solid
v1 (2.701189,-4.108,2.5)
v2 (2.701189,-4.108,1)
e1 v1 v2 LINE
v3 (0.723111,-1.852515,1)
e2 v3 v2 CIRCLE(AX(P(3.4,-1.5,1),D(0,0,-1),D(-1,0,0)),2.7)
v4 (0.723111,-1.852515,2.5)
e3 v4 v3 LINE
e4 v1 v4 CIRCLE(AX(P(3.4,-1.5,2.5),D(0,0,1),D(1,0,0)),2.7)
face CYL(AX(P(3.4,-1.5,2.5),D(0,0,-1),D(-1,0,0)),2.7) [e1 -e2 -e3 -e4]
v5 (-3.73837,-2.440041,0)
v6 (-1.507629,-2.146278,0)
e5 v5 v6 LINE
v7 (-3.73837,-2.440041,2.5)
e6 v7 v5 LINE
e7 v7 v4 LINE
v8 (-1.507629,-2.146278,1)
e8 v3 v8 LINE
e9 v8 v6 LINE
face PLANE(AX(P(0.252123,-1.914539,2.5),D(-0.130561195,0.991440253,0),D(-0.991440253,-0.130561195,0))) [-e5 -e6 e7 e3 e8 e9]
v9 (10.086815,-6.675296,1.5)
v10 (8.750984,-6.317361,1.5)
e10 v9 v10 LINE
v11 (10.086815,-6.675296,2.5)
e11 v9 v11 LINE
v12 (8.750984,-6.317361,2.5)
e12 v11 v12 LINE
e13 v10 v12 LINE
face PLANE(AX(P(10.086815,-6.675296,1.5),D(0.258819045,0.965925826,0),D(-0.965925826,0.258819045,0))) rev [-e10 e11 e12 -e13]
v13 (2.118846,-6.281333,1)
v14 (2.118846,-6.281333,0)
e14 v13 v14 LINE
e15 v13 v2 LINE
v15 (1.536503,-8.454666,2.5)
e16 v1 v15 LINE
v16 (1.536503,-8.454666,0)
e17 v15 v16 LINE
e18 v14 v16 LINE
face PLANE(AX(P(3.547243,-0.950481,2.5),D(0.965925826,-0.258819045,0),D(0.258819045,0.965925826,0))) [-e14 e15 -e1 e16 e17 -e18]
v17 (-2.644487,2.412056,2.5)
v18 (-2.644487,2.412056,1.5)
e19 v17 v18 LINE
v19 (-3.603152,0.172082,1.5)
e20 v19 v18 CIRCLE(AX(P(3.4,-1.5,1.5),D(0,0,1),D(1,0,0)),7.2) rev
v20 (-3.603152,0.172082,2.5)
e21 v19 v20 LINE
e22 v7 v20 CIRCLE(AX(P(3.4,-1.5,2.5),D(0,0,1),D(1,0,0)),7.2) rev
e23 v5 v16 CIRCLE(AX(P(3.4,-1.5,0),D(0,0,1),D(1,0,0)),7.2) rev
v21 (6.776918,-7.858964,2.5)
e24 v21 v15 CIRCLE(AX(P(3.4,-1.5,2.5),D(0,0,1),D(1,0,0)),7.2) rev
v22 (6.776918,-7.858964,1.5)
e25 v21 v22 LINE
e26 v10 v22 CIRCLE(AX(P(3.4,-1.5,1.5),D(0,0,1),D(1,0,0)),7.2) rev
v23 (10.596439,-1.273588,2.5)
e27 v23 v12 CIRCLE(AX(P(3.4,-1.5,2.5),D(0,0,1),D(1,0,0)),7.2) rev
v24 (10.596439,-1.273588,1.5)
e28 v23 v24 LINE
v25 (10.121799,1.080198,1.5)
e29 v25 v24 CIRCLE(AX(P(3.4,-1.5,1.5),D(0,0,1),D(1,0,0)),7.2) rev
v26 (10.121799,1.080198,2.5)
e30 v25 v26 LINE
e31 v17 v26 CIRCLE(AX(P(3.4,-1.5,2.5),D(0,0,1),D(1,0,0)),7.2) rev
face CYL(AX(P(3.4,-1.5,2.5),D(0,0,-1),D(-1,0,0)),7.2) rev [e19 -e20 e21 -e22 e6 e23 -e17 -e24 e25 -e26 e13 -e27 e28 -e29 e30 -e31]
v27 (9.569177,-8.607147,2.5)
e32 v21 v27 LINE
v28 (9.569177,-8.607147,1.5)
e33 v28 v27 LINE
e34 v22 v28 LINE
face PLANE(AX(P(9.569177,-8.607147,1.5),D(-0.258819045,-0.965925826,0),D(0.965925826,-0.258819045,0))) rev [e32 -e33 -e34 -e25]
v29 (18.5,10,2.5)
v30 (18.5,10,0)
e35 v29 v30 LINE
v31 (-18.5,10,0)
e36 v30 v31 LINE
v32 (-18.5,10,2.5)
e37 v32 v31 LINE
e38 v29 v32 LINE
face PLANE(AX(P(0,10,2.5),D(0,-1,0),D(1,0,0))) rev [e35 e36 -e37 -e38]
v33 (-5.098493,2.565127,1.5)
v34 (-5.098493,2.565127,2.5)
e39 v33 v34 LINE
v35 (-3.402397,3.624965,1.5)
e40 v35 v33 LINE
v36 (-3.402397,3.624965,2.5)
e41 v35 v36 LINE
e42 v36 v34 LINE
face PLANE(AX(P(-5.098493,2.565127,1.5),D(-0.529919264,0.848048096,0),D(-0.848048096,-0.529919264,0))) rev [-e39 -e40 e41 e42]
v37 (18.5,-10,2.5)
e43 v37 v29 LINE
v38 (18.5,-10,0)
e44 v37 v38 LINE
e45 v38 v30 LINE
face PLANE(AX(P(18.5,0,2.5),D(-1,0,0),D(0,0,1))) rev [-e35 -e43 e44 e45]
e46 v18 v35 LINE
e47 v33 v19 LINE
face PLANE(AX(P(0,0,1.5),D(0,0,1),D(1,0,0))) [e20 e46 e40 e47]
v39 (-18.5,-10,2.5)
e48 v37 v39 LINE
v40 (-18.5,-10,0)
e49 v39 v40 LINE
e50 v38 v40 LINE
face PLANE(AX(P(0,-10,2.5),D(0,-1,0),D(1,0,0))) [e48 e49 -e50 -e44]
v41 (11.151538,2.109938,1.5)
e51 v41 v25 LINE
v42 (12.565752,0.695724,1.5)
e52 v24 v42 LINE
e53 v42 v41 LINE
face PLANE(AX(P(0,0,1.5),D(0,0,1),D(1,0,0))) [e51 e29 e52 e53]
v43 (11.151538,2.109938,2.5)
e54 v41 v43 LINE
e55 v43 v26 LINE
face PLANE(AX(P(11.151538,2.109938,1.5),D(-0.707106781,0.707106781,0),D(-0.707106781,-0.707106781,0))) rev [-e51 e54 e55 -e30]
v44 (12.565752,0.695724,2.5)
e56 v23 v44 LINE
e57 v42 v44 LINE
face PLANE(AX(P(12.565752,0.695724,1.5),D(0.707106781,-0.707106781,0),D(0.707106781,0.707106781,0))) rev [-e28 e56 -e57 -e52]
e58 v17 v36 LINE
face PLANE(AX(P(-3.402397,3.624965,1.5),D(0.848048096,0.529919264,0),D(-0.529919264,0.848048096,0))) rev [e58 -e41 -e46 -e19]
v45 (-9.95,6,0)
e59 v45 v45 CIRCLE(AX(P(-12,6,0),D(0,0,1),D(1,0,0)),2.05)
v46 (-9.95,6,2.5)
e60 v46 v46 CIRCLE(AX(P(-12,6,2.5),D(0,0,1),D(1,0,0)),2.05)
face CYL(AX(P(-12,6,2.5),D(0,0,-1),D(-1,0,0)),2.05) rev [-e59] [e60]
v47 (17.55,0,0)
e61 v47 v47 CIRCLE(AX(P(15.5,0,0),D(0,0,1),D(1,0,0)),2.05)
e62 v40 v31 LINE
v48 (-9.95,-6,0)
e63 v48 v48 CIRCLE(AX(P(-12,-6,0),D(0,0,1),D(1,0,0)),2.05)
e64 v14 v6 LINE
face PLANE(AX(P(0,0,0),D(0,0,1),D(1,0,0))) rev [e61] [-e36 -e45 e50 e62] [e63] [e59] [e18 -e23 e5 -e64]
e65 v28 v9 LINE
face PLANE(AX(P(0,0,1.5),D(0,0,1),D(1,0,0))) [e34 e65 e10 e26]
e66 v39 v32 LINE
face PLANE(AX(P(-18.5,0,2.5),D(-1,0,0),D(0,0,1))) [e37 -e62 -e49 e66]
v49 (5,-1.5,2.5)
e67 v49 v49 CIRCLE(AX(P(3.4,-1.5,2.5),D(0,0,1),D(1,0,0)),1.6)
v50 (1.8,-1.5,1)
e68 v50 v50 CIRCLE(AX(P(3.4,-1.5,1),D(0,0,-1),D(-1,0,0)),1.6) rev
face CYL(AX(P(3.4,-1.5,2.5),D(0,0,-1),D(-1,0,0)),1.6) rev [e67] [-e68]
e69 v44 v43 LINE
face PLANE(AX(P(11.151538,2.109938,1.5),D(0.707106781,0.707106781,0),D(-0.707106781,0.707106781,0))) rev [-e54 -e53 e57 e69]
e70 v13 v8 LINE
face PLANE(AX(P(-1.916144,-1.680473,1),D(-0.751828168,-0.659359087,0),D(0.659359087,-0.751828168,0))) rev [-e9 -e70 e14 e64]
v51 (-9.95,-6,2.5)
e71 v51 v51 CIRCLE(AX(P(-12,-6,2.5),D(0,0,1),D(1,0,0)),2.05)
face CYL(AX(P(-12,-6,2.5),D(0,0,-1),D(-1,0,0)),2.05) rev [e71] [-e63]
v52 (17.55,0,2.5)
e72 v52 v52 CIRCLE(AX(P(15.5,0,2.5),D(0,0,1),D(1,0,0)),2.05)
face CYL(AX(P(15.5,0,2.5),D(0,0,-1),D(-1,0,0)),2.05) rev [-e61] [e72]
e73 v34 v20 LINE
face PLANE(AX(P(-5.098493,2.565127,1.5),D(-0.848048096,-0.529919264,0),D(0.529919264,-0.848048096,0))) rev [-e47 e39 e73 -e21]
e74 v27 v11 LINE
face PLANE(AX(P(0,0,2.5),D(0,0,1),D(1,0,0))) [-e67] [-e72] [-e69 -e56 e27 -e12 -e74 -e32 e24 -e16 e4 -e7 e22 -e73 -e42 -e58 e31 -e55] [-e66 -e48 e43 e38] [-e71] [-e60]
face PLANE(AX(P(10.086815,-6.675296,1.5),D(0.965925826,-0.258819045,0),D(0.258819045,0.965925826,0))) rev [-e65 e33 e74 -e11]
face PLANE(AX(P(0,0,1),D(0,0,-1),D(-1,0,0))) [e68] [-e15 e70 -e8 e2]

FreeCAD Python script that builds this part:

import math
import FreeCAD as App
import Part
import Sketcher
Q = App.Units.Quantity

doc = App.newDocument("Part")
body = doc.addObject("PartDesign::Body", "Body")

# Sketch on XY plane
sketch1 = body.newObject("Sketcher::SketchObject", "Sketch")
sketch1.AttachmentSupport = (doc.getObject("XY_Plane"), [""])
sketch1.MapMode = "FlatFace"
sketch1.addGeometry([
    Part.LineSegment(App.Vector(-18.5, 10, 0), App.Vector(-18.5, -10, 0)),  # 0
    Part.LineSegment(App.Vector(-18.5, -10, 0), App.Vector(18.5, -10, 0)),  # 1
    Part.LineSegment(App.Vector(18.5, -10, 0), App.Vector(18.5, 10, 0)),  # 2
    Part.LineSegment(App.Vector(18.5, 10, 0), App.Vector(-18.5, 10, 0)),  # 3
    Part.Circle(App.Vector(-12, -6, 0), App.Vector(0, 0, 1), 2.05),  # 4
    Part.Circle(App.Vector(3.4, -1.5, 0), App.Vector(0, 0, 1), 1.6),  # 5
    Part.LineSegment(App.Vector(0.723111, -1.852515, 0), App.Vector(-3.73837, -2.440041, 0)),  # 6
    Part.ArcOfCircle(Part.Circle(App.Vector(3.4, -1.5, 0), App.Vector(0, 0, 1), 7.2), math.radians(-105), math.radians(187.502023)),  # 7
    Part.LineSegment(App.Vector(1.536503, -8.454666, 0), App.Vector(2.701189, -4.108, 0)),  # 8
    Part.ArcOfCircle(Part.Circle(App.Vector(3.4, -1.5, 0), App.Vector(0, 0, 1), 2.7), math.radians(-105), math.radians(187.502023)),  # 9
    Part.Circle(App.Vector(-12, 6, 0), App.Vector(0, 0, 1), 2.05),  # 10
    Part.Circle(App.Vector(15.5, 0, 0), App.Vector(0, 0, 1), 2.05),  # 11
], False)
sketch1.addConstraint([
    Sketcher.Constraint("Coincident", 0, 2, 1, 1),
    Sketcher.Constraint("Coincident", 1, 2, 2, 1),
    Sketcher.Constraint("Coincident", 2, 2, 3, 1),
    Sketcher.Constraint("Coincident", 3, 2, 0, 1),
    Sketcher.Constraint("Coincident", 6, 2, 7, 2),
    Sketcher.Constraint("Coincident", 7, 1, 8, 1),
    Sketcher.Constraint("Coincident", 8, 2, 9, 1),
    Sketcher.Constraint("Coincident", 9, 2, 6, 1),
    Sketcher.Constraint("Vertical", 0),
    Sketcher.Constraint("Horizontal", 1),
    Sketcher.Constraint("Vertical", 2),
    Sketcher.Constraint("Horizontal", 3),
    Sketcher.Constraint("Coincident", 7, 3, 5, 3),
    Sketcher.Constraint("Coincident", 9, 3, 5, 3),
    Sketcher.Constraint("Equal", 4, 10),
    Sketcher.Constraint("Equal", 10, 11),
    Sketcher.Constraint("Symmetric", 0, 2, 2, 2, -1, 1),
    Sketcher.Constraint("Symmetric", 4, 3, 10, 3, -1),
    Sketcher.Constraint("PointOnObject", 11, 3, -1),
    Sketcher.Constraint("Diameter", 4, Q("4.1 mm")),
    Sketcher.Constraint("Diameter", 5, Q("3.2 mm")),
    Sketcher.Constraint("Radius", 7, Q("7.2 mm")),
    Sketcher.Constraint("Radius", 9, Q("2.7 mm")),
    Sketcher.Constraint("DistanceX", 1, 1, 1, 2, Q("37 mm")),
    Sketcher.Constraint("DistanceY", 0, 2, 0, 1, Q("20 mm")),
    Sketcher.Constraint("Angle", 8, Q("75 deg")),
    Sketcher.Constraint("DistanceX", 4, 3, -1, 1, Q("12 mm")),
    Sketcher.Constraint("DistanceY", 4, 3, -1, 1, Q("6 mm")),
    Sketcher.Constraint("DistanceX", 11, 3, 1, 2, Q("3 mm")),
    Sketcher.Constraint("DistanceX", -1, 1, 5, 3, Q("3.4 mm")),
    Sketcher.Constraint("DistanceY", 5, 3, -1, 1, Q("1.5 mm")),
    Sketcher.Constraint("DistanceY", 8, 2, -1, 1, Q("4.108 mm")),
    Sketcher.Constraint("DistanceX", 6, 2, -1, 1, Q("3.73837 mm")),
    Sketcher.Constraint("DistanceX", -1, 1, 9, 2, Q("0.723111 mm")),
])
pad1 = body.newObject("PartDesign::Pad", "Pad")
pad1.Profile = sketch1
pad1.Length = 2.5

# Sketch on XY plane
sketch2 = body.newObject("Sketcher::SketchObject", "Sketch001")
sketch2.AttachmentSupport = (doc.getObject("XY_Plane"), [""])
sketch2.MapMode = "FlatFace"
sketch2.addGeometry([
    Part.LineSegment(App.Vector(-1.507629, -2.146278, 0), App.Vector(-3.73837, -2.440041, 0)),  # 0
    Part.ArcOfCircle(Part.Circle(App.Vector(3.4, -1.5, 0), App.Vector(0, 0, 1), 7.2), math.radians(-105), math.radians(187.502023)),  # 1
    Part.LineSegment(App.Vector(1.536503, -8.454666, 0), App.Vector(2.118846, -6.281333, 0)),  # 2
    Part.LineSegment(App.Vector(2.118846, -6.281333, 0), App.Vector(-1.507629, -2.146278, 0)),  # 3
    Part.Circle(App.Vector(3.4, -1.5, 0), App.Vector(0, 0, 1), 1.6),  # 4
], False)
sketch2.addConstraint([
    Sketcher.Constraint("Coincident", 0, 2, 1, 2),
    Sketcher.Constraint("Coincident", 1, 1, 2, 1),
    Sketcher.Constraint("Coincident", 2, 2, 3, 1),
    Sketcher.Constraint("Coincident", 3, 2, 0, 1),
    Sketcher.Constraint("Coincident", 4, 3, 1, 3),
    Sketcher.Constraint("Equal", 0, 2),
    Sketcher.Constraint("Diameter", 4, Q("3.2 mm")),
    Sketcher.Constraint("Radius", 1, Q("7.2 mm")),
    Sketcher.Constraint("Angle", 2, Q("75 deg")),
    Sketcher.Constraint("Distance", 3, Q("5.5 mm")),
    Sketcher.Constraint("DistanceX", -1, 1, 1, 3, Q("3.4 mm")),
    Sketcher.Constraint("DistanceY", 1, 3, -1, 1, Q("1.5 mm")),
    Sketcher.Constraint("Distance", 0, Q("2.25 mm")),
    Sketcher.Constraint("DistanceX", 0, 2, -1, 1, Q("3.73837 mm")),
    Sketcher.Constraint("DistanceX", 3, 2, -1, 1, Q("1.507629 mm")),
])
pocket1 = body.newObject("PartDesign::Pocket", "Pocket")
pocket1.Profile = sketch2
pocket1.Length = 1
pocket1.Reversed = True

# Sketch on XY plane
sketch3 = body.newObject("Sketcher::SketchObject", "Sketch002")
sketch3.AttachmentSupport = (doc.getObject("XY_Plane"), [""])
sketch3.MapMode = "FlatFace"
sketch3.AttachmentOffset = App.Placement(App.Vector(0, 0, 2.5), App.Rotation())
sketch3.addGeometry([
    Part.LineSegment(App.Vector(-3.402397, 3.624965, 0), App.Vector(-5.098493, 2.565127, 0)),  # 0
    Part.LineSegment(App.Vector(-5.098493, 2.565127, 0), App.Vector(-2.978816, -0.827066, 0)),  # 1
    Part.LineSegment(App.Vector(-2.978816, -0.827066, 0), App.Vector(-1.28272, 0.232773, 0)),  # 2
    Part.LineSegment(App.Vector(-1.28272, 0.232773, 0), App.Vector(-3.402397, 3.624965, 0)),  # 3
    Part.LineSegment(App.Vector(12.565752, 0.695724, 0), App.Vector(11.151538, 2.109938, 0)),  # 4
    Part.LineSegment(App.Vector(11.151538, 2.109938, 0), App.Vector(8.323111, -0.718489, 0)),  # 5
    Part.LineSegment(App.Vector(8.323111, -0.718489, 0), App.Vector(9.737325, -2.132703, 0)),  # 6
    Part.LineSegment(App.Vector(9.737325, -2.132703, 0), App.Vector(12.565752, 0.695724, 0)),  # 7
    Part.LineSegment(App.Vector(9.569177, -8.607147, 0), App.Vector(10.086815, -6.675296, 0)),  # 8
    Part.LineSegment(App.Vector(10.086815, -6.675296, 0), App.Vector(6.223111, -5.640019, 0)),  # 9
    Part.LineSegment(App.Vector(6.223111, -5.640019, 0), App.Vector(5.705473, -7.571871, 0)),  # 10
    Part.LineSegment(App.Vector(5.705473, -7.571871, 0), App.Vector(9.569177, -8.607147, 0)),  # 11
], False)
sketch3.addConstraint([
    Sketcher.Constraint("Coincident", 0, 2, 1, 1),
    Sketcher.Constraint("Coincident", 1, 2, 2, 1),
    Sketcher.Constraint("Coincident", 2, 2, 3, 1),
    Sketcher.Constraint("Coincident", 3, 2, 0, 1),
    Sketcher.Constraint("Coincident", 4, 2, 5, 1),
    Sketcher.Constraint("Coincident", 5, 2, 6, 1),
    Sketcher.Constraint("Coincident", 6, 2, 7, 1),
    Sketcher.Constraint("Coincident", 7, 2, 4, 1),
    Sketcher.Constraint("Coincident", 8, 2, 9, 1),
    Sketcher.Constraint("Coincident", 9, 2, 10, 1),
    Sketcher.Constraint("Coincident", 10, 2, 11, 1),
    Sketcher.Constraint("Coincident", 11, 2, 8, 1),
    Sketcher.Constraint("Perpendicular", 0, 1),
    Sketcher.Constraint("Perpendicular", 1, 2),
    Sketcher.Constraint("Perpendicular", 2, 3),
    Sketcher.Constraint("Perpendicular", 4, 5),
    Sketcher.Constraint("Perpendicular", 5, 6),
    Sketcher.Constraint("Perpendicular", 6, 7),
    Sketcher.Constraint("Perpendicular", 8, 9),
    Sketcher.Constraint("Perpendicular", 9, 10),
    Sketcher.Constraint("Perpendicular", 10, 11),
    Sketcher.Constraint("Equal", 2, 4),
    Sketcher.Constraint("Equal", 3, 5),
    Sketcher.Constraint("Equal", 6, 8),
    Sketcher.Constraint("Equal", 7, 9),
    Sketcher.Constraint("Angle", 0, Q("-148 deg")),
    Sketcher.Constraint("Angle", 4, Q("135 deg")),
    Sketcher.Constraint("Angle", 8, Q("75 deg")),
    Sketcher.Constraint("Distance", 0, Q("2 mm")),
    Sketcher.Constraint("Distance", 1, Q("4 mm")),
    Sketcher.Constraint("DistanceX", 9, 2, 5, 2, Q("2.1 mm")),
    Sketcher.Constraint("DistanceX", 2, 2, -1, 1, Q("1.28272 mm")),
    Sketcher.Constraint("DistanceX", -1, 1, 4, 2, Q("11.151538 mm")),
    Sketcher.Constraint("DistanceY", -1, 1, 4, 2, Q("2.109938 mm")),
    Sketcher.Constraint("DistanceY", 9, 2, -1, 1, Q("5.640019 mm")),
    Sketcher.Constraint("DistanceY", 4, 2, 0, 2, Q("0.455189 mm")),
])
pocket2 = body.newObject("PartDesign::Pocket", "Pocket001")
pocket2.Profile = sketch3
pocket2.Length = 1

doc.recompute()
